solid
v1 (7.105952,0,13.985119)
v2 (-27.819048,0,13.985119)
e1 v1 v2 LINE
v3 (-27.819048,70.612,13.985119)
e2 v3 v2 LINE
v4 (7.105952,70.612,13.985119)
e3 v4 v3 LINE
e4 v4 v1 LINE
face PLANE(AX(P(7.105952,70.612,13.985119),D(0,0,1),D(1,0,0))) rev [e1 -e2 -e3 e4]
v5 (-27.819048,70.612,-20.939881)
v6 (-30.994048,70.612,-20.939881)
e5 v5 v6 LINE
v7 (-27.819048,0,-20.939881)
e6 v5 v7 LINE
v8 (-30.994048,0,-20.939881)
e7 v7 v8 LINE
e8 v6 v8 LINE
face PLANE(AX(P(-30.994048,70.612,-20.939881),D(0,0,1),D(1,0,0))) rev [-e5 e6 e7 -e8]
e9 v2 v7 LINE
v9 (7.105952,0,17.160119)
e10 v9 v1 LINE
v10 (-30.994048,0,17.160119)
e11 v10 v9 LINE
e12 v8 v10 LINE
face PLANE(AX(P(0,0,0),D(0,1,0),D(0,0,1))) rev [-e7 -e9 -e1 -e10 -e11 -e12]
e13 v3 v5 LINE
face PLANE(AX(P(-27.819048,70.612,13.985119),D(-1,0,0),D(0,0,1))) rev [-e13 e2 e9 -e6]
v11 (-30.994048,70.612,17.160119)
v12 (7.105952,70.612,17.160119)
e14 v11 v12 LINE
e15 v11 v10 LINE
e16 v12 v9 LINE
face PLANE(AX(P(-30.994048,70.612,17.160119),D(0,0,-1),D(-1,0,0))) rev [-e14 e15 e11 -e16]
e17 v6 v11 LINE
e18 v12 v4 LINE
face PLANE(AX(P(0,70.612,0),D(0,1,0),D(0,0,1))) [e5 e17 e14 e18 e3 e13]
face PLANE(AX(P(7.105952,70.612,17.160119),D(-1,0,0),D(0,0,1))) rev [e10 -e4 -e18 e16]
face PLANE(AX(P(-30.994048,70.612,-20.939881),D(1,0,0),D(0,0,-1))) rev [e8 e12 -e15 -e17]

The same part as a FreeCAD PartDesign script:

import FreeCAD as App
import Part
import Sketcher

V = App.Vector
Q = App.Units.Quantity

doc = App.newDocument("Part")
body = doc.addObject("PartDesign::Body", "Body")

sketch1 = body.newObject("Sketcher::SketchObject", "Sketch")
sketch1.AttachmentSupport = (doc.getObject("XZ_Plane"), [""])
sketch1.MapMode = "FlatFace"
sketch1.addGeometry([
    Part.LineSegment(V(-30.994048, -20.939881, 0), V(-30.994048, 17.160119, 0)),
    Part.LineSegment(V(-30.994048, 17.160119, 0), V(7.105952, 17.160119, 0)),
    Part.LineSegment(V(7.105952, 17.160119, 0), V(7.105952, 13.985119, 0)),
    Part.LineSegment(V(7.105952, 13.985119, 0), V(-27.819048, 13.985119, 0)),
    Part.LineSegment(V(-27.819048, 13.985119, 0), V(-27.819048, -20.939881, 0)),
    Part.LineSegment(V(-27.819048, -20.939881, 0), V(-30.994048, -20.939881, 0)),
], False)
sketch1.addConstraint([
    Sketcher.Constraint("Coincident", 0, 2, 1, 1),
    Sketcher.Constraint("Coincident", 1, 2, 2, 1),
    Sketcher.Constraint("Coincident", 2, 2, 3, 1),
    Sketcher.Constraint("Coincident", 3, 2, 4, 1),
    Sketcher.Constraint("Coincident", 4, 2, 5, 1),
    Sketcher.Constraint("Coincident", 5, 2, 0, 1),
    Sketcher.Constraint("Vertical", 0),
    Sketcher.Constraint("Horizontal", 1),
    Sketcher.Constraint("Vertical", 2),
    Sketcher.Constraint("Horizontal", 3),
    Sketcher.Constraint("Vertical", 4),
    Sketcher.Constraint("Horizontal", 5),
    Sketcher.Constraint("Equal", 1, 0),
    Sketcher.Constraint("Equal", 5, 2),
    Sketcher.Constraint("DistanceX", 1, 1, 1, 2, Q("1.5 in")),
    Sketcher.Constraint("DistanceX", 3, 2, 3, 1, Q("1.375 in")),
    Sketcher.Constraint("DistanceY", -1, 1, 0, 2, Q("17.160119 mm")),
    Sketcher.Constraint("DistanceX", 0, 2, -1, 1, Q("30.994048 mm")),
])
pad1 = body.newObject("PartDesign::Pad", "Pad")
pad1.Profile = sketch1
pad1.Length = Q("2.78 in")
pad1.Reversed = True

doc.recompute()
